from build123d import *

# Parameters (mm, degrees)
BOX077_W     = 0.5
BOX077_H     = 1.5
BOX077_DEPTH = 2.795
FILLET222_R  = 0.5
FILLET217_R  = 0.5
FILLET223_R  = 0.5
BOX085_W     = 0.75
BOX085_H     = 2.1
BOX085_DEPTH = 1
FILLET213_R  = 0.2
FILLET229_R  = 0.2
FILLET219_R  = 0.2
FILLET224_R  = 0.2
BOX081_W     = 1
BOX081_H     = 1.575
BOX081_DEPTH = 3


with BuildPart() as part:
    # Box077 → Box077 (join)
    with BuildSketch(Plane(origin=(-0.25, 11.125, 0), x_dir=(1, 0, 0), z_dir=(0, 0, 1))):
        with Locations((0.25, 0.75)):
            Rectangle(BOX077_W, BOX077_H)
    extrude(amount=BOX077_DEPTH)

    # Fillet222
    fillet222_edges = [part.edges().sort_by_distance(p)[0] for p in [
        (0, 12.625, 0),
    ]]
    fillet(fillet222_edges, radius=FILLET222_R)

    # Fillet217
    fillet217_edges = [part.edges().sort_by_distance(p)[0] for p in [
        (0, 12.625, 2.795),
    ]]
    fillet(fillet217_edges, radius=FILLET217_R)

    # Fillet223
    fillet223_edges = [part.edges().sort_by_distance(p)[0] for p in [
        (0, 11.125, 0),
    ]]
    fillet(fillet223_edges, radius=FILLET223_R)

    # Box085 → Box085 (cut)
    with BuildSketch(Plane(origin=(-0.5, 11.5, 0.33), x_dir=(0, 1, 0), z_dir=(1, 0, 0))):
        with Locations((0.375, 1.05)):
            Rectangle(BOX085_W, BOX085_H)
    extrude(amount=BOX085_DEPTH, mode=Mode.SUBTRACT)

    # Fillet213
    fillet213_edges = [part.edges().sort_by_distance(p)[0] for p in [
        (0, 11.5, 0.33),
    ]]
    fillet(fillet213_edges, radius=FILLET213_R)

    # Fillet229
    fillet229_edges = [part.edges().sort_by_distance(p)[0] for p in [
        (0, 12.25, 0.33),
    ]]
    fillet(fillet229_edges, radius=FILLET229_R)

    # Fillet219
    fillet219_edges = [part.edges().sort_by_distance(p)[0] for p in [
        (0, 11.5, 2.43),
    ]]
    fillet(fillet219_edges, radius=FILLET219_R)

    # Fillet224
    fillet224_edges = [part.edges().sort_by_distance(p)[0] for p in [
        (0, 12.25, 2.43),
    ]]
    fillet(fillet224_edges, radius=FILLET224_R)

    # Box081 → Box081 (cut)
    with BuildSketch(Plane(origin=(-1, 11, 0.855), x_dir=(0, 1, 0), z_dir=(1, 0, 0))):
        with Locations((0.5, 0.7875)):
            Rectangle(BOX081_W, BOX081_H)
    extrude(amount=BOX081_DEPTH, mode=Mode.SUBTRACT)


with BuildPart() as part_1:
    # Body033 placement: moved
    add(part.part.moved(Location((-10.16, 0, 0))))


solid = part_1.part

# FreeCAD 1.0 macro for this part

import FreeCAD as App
import Part
import Sketcher
Q = App.Units.Quantity


def edges_at(feature, points):
    """Names of the edges that pass closest to the given points."""
    edges = feature.Shape.Edges
    near = lambda p: min(range(len(edges)), key=lambda i: edges[i].distToShape(Part.Vertex(*p))[0])
    return sorted({f"Edge{near(p) + 1}" for p in points})

doc = App.newDocument("Part")
body = doc.addObject("PartDesign::Body", "Body")

sketch1 = body.newObject("Sketcher::SketchObject", "Sketch")
sketch1.AttachmentSupport = (doc.getObject("XY_Plane"), [""])
sketch1.MapMode = "FlatFace"
sketch1.addGeometry(Part.LineSegment(App.Vector(-0.2, 12.6, 0), App.Vector(-0.2, 11.1, 0)), False)
sketch1.addGeometry(Part.LineSegment(App.Vector(-0.2, 11.1, 0), App.Vector(0.2, 11.1, 0)), False)
sketch1.addGeometry(Part.LineSegment(App.Vector(0.2, 11.1, 0), App.Vector(0.2, 12.6, 0)), False)
sketch1.addGeometry(Part.LineSegment(App.Vector(0.2, 12.6, 0), App.Vector(-0.2, 12.6, 0)), False)
sketch1.addConstraint(Sketcher.Constraint("Coincident", 0, 2, 1, 1))
sketch1.addConstraint(Sketcher.Constraint("Coincident", 1, 2, 2, 1))
sketch1.addConstraint(Sketcher.Constraint("Coincident", 2, 2, 3, 1))
sketch1.addConstraint(Sketcher.Constraint("Coincident", 3, 2, 0, 1))
sketch1.addConstraint(Sketcher.Constraint("Vertical", 0))
sketch1.addConstraint(Sketcher.Constraint("Horizontal", 1))
sketch1.addConstraint(Sketcher.Constraint("Vertical", 2))
sketch1.addConstraint(Sketcher.Constraint("Horizontal", 3))
sketch1.addConstraint(Sketcher.Constraint("DistanceX", 1, 1, 1, 2, Q("0.5 mm")))
sketch1.addConstraint(Sketcher.Constraint("DistanceY", 0, 2, 0, 1, Q("1.5 mm")))
sketch1.addConstraint(Sketcher.Constraint("DistanceX", 0, 2, -1, 1, Q("0.25 mm")))
sketch1.addConstraint(Sketcher.Constraint("DistanceY", -1, 1, 0, 2, Q("11.125 mm")))
pad1 = body.newObject("PartDesign::Pad", "Pad")
pad1.Profile = sketch1
pad1.Length = 2.795
doc.recompute()

fillet = body.newObject("PartDesign::Fillet", "Fillet")
fillet.Base = (pad1, edges_at(pad1, [(0, 12.625, 0)]))
fillet.Radius = 0.5
doc.recompute()

fillet2 = body.newObject("PartDesign::Fillet", "Fillet001")
fillet2.Base = (fillet, edges_at(fillet, [(0, 12.625, 2.795)]))
fillet2.Radius = 0.5
doc.recompute()

fillet3 = body.newObject("PartDesign::Fillet", "Fillet002")
fillet3.Base = (fillet2, edges_at(fillet2, [(0, 11.125, 0)]))
fillet3.Radius = 0.5

sketch2 = body.newObject("Sketcher::SketchObject", "Sketch001")
sketch2.AttachmentSupport = (doc.getObject("YZ_Plane"), [""])
sketch2.MapMode = "FlatFace"
sketch2.AttachmentOffset = App.Placement(App.Vector(0, 0, -0.5), App.Rotation())
sketch2.addGeometry(Part.LineSegment(App.Vector(11.5, 2.4, 0), App.Vector(11.5, 0.3, 0)), False)
sketch2.addGeometry(Part.LineSegment(App.Vector(11.5, 0.3, 0), App.Vector(12.2, 0.3, 0)), False)
sketch2.addGeometry(Part.LineSegment(App.Vector(12.2, 0.3, 0), App.Vector(12.2, 2.4, 0)), False)
sketch2.addGeometry(Part.LineSegment(App.Vector(12.2, 2.4, 0), App.Vector(11.5, 2.4, 0)), False)
sketch2.addConstraint(Sketcher.Constraint("Coincident", 0, 2, 1, 1))
sketch2.addConstraint(Sketcher.Constraint("Coincident", 1, 2, 2, 1))
sketch2.addConstraint(Sketcher.Constraint("Coincident", 2, 2, 3, 1))
sketch2.addConstraint(Sketcher.Constraint("Coincident", 3, 2, 0, 1))
sketch2.addConstraint(Sketcher.Constraint("Vertical", 0))
sketch2.addConstraint(Sketcher.Constraint("Horizontal", 1))
sketch2.addConstraint(Sketcher.Constraint("Vertical", 2))
sketch2.addConstraint(Sketcher.Constraint("Horizontal", 3))
sketch2.addConstraint(Sketcher.Constraint("DistanceY", 0, 2, 0, 1, Q("2.1 mm")))
sketch2.addConstraint(Sketcher.Constraint("DistanceX", 1, 1, 1, 2, Q("0.75 mm")))
sketch2.addConstraint(Sketcher.Constraint("DistanceX", -1, 1, 0, 2, Q("11.5 mm")))
sketch2.addConstraint(Sketcher.Constraint("DistanceY", -1, 1, 0, 2, Q("0.33 mm")))
pocket1 = body.newObject("PartDesign::Pocket", "Pocket")
pocket1.Profile = sketch2
pocket1.Length = 1
pocket1.Reversed = True
doc.recompute()

fillet4 = body.newObject("PartDesign::Fillet", "Fillet003")
fillet4.Base = (pocket1, edges_at(pocket1, [(0, 11.5, 0.33)]))
fillet4.Radius = 0.2
doc.recompute()

fillet5 = body.newObject("PartDesign::Fillet", "Fillet004")
fillet5.Base = (fillet4, edges_at(fillet4, [(0, 12.25, 0.33)]))
fillet5.Radius = 0.2
doc.recompute()

fillet6 = body.newObject("PartDesign::Fillet", "Fillet005")
fillet6.Base = (fillet5, edges_at(fillet5, [(0, 11.5, 2.43)]))
fillet6.Radius = 0.2
doc.recompute()

fillet7 = body.newObject("PartDesign::Fillet", "Fillet006")
fillet7.Base = (fillet6, edges_at(fillet6, [(0, 12.25, 2.43)]))
fillet7.Radius = 0.2

sketch3 = body.newObject("Sketcher::SketchObject", "Sketch002")
sketch3.AttachmentSupport = (doc.getObject("YZ_Plane"), [""])
sketch3.MapMode = "FlatFace"
sketch3.AttachmentOffset = App.Placement(App.Vector(0, 0, -1), App.Rotation())
sketch3.addGeometry(Part.LineSegment(App.Vector(11, 2.4, 0), App.Vector(11, 0.9, 0)), False)
sketch3.addGeometry(Part.LineSegment(App.Vector(11, 0.9, 0), App.Vector(12, 0.9, 0)), False)
sketch3.addGeometry(Part.LineSegment(App.Vector(12, 0.9, 0), App.Vector(12, 2.4, 0)), False)
sketch3.addGeometry(Part.LineSegment(App.Vector(12, 2.4, 0), App.Vector(11, 2.4, 0)), False)
sketch3.addConstraint(Sketcher.Constraint("Coincident", 0, 2, 1, 1))
sketch3.addConstraint(Sketcher.Constraint("Coincident", 1, 2, 2, 1))
sketch3.addConstraint(Sketcher.Constraint("Coincident", 2, 2, 3, 1))
sketch3.addConstraint(Sketcher.Constraint("Coincident", 3, 2, 0, 1))
sketch3.addConstraint(Sketcher.Constraint("Vertical", 0))
sketch3.addConstraint(Sketcher.Constraint("Horizontal", 1))
sketch3.addConstraint(Sketcher.Constraint("Vertical", 2))
sketch3.addConstraint(Sketcher.Constraint("Horizontal", 3))
sketch3.addConstraint(Sketcher.Constraint("DistanceX", 1, 1, 1, 2, Q("1 mm")))
sketch3.addConstraint(Sketcher.Constraint("DistanceX", -1, 1, 0, 2, Q("11 mm")))
sketch3.addConstraint(Sketcher.Constraint("DistanceY", 0, 2, 0, 1, Q("1.575 mm")))
sketch3.addConstraint(Sketcher.Constraint("DistanceY", -1, 1, 2, 2, Q("2.43 mm")))
pocket2 = body.newObject("PartDesign::Pocket", "Pocket001")
pocket2.Profile = sketch3
pocket2.Length = 3
pocket2.Reversed = True
body2 = doc.addObject("PartDesign::Body", "Body001")
doc.recompute()

body.Placement = App.Placement(App.Vector(-10.16, 0, 0), App.Rotation(App.Vector(0, 0, 1), 0))
boolean = body2.newObject("PartDesign::Boolean", "Boolean")
boolean.Type = "Fuse"
boolean.addObjects([body])

doc.recompute()
